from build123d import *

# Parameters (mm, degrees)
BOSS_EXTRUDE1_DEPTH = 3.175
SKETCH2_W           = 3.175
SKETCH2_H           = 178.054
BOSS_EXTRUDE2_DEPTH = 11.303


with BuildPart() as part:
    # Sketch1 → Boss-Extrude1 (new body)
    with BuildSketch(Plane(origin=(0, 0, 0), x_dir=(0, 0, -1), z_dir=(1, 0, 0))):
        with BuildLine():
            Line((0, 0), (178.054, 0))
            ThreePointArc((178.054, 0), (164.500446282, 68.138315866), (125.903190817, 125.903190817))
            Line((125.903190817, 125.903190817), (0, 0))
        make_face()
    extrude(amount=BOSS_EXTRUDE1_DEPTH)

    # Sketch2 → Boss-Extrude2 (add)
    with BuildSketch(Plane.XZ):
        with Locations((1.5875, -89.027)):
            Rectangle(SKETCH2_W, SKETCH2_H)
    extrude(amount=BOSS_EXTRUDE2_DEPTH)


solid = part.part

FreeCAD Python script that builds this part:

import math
import FreeCAD as App
import Part
import Sketcher
Q = App.Units.Quantity

doc = App.newDocument("Part")
body = doc.addObject("PartDesign::Body", "Body")

sketch1 = body.newObject("Sketcher::SketchObject", "Sketch")
sketch1.AttachmentSupport = (doc.getObject("YZ_Plane"), [""])
sketch1.MapMode = "FlatFace"
sketch1.addGeometry(Part.LineSegment(App.Vector(0, 0, 0), App.Vector(0, -178, 0)), False)
sketch1.addGeometry(Part.ArcOfCircle(Part.Circle(App.Vector(0, 0, 0), App.Vector(0, 0, 1), 178), math.radians(-90), math.radians(-45)), False)
sketch1.addGeometry(Part.LineSegment(App.Vector(126, -126, 0), App.Vector(0, 0, 0)), False)
sketch1.addConstraint(Sketcher.Constraint("Coincident", 0, 2, 1, 1))
sketch1.addConstraint(Sketcher.Constraint("Coincident", 1, 2, 2, 1))
sketch1.addConstraint(Sketcher.Constraint("Coincident", 2, 2, 0, 1))
sketch1.addConstraint(Sketcher.Constraint("Vertical", 0))
sketch1.addConstraint(Sketcher.Constraint("Coincident", 1, 3, -1, 1))
sketch1.addConstraint(Sketcher.Constraint("Coincident", 2, 2, -1, 1))
sketch1.addConstraint(Sketcher.Constraint("Radius", 1, Q("7.01 in")))
sketch1.addConstraint(Sketcher.Constraint("Angle", 2, Q("135 deg")))
pad1 = body.newObject("PartDesign::Pad", "Pad")
pad1.Profile = sketch1
pad1.Length = Q("0.125 in")

sketch2 = body.newObject("Sketcher::SketchObject", "Sketch001")
sketch2.AttachmentSupport = (doc.getObject("XZ_Plane"), [""])
sketch2.MapMode = "FlatFace"
sketch2.addGeometry(Part.LineSegment(App.Vector(0, 0, 0), App.Vector(0, -178.1, 0)), False)
sketch2.addGeometry(Part.LineSegment(App.Vector(0, -178.1, 0), App.Vector(3.2, -178.1, 0)), False)
sketch2.addGeometry(Part.LineSegment(App.Vector(3.2, -178.1, 0), App.Vector(3.2, 0, 0)), False)
sketch2.addGeometry(Part.LineSegment(App.Vector(3.2, 0, 0), App.Vector(0, 0, 0)), False)
sketch2.addConstraint(Sketcher.Constraint("Coincident", 0, 2, 1, 1))
sketch2.addConstraint(Sketcher.Constraint("Coincident", 1, 2, 2, 1))
sketch2.addConstraint(Sketcher.Constraint("Coincident", 2, 2, 3, 1))
sketch2.addConstraint(Sketcher.Constraint("Coincident", 3, 2, 0, 1))
sketch2.addConstraint(Sketcher.Constraint("Vertical", 0))
sketch2.addConstraint(Sketcher.Constraint("Horizontal", 1))
sketch2.addConstraint(Sketcher.Constraint("Vertical", 2))
sketch2.addConstraint(Sketcher.Constraint("Horizontal", 3))
sketch2.addConstraint(Sketcher.Constraint("Coincident", 3, 2, -1, 1))
sketch2.addConstraint(Sketcher.Constraint("DistanceY", 0, 2, 0, 1, Q("7.01 in")))
sketch2.addConstraint(Sketcher.Constraint("DistanceX", 1, 1, 1, 2, Q("0.125 in")))
pad2 = body.newObject("PartDesign::Pad", "Pad001")
pad2.Profile = sketch2
pad2.Length = Q("0.445 in")

doc.recompute()
